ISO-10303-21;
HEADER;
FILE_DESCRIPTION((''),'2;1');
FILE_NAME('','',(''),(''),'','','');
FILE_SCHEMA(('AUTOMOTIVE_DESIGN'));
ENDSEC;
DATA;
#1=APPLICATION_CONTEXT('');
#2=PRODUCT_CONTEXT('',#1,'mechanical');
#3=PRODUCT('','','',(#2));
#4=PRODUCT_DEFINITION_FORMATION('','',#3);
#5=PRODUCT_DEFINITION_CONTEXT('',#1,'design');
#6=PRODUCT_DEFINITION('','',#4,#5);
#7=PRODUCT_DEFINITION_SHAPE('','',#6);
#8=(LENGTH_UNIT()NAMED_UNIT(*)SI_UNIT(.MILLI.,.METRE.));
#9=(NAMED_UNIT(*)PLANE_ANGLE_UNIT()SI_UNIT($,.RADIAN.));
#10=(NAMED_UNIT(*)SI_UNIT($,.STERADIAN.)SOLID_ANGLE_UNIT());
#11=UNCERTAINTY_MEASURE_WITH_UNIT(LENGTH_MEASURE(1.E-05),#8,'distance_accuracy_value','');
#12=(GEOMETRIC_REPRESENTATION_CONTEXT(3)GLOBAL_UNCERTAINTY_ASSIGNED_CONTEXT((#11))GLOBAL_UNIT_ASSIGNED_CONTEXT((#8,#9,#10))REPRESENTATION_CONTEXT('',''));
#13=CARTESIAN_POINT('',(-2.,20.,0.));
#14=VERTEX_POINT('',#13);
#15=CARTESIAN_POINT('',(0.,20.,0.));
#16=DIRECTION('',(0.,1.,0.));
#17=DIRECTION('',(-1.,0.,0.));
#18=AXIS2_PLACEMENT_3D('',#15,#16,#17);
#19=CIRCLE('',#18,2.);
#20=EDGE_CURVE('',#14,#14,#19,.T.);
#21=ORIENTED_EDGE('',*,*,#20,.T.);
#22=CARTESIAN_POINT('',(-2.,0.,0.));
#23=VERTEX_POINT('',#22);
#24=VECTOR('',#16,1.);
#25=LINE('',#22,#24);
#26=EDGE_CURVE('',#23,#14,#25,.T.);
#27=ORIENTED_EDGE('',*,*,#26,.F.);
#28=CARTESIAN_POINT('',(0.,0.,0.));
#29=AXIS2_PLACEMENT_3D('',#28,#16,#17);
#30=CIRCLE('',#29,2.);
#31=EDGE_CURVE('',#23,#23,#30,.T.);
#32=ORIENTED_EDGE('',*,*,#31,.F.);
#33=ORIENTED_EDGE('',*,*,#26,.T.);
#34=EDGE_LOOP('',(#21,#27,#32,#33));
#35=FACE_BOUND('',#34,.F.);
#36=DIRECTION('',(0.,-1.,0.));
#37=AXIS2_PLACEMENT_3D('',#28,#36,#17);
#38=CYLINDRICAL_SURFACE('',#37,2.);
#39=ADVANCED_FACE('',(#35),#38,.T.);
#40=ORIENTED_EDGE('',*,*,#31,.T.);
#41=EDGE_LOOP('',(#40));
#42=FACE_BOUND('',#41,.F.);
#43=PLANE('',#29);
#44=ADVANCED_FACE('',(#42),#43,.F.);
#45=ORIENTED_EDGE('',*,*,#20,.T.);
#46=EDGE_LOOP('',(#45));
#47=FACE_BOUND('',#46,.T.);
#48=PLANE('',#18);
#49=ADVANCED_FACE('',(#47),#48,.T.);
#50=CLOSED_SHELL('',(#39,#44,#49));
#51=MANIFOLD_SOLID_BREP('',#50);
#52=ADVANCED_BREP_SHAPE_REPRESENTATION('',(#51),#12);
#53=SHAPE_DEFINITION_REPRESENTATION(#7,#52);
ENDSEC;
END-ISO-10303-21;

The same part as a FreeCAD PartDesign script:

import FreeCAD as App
import Part
import Sketcher

V = App.Vector
Q = App.Units.Quantity

doc = App.newDocument("Part")
body = doc.addObject("PartDesign::Body", "Body")

sketch1 = body.newObject("Sketcher::SketchObject", "Sketch")
sketch1.AttachmentSupport = (doc.getObject("XZ_Plane"), [""])
sketch1.MapMode = "FlatFace"
sketch1.addGeometry(Part.Circle(V(0, 0, 0), V(0, 0, 1), 2), False)
sketch1.addConstraint([
    Sketcher.Constraint("Coincident", 0, 3, -1, 1),
    Sketcher.Constraint("Diameter", 0, Q("4 mm")),
])
pad1 = body.newObject("PartDesign::Pad", "Pad")
pad1.Profile = sketch1
pad1.Length = 20
pad1.Reversed = True

doc.recompute()
